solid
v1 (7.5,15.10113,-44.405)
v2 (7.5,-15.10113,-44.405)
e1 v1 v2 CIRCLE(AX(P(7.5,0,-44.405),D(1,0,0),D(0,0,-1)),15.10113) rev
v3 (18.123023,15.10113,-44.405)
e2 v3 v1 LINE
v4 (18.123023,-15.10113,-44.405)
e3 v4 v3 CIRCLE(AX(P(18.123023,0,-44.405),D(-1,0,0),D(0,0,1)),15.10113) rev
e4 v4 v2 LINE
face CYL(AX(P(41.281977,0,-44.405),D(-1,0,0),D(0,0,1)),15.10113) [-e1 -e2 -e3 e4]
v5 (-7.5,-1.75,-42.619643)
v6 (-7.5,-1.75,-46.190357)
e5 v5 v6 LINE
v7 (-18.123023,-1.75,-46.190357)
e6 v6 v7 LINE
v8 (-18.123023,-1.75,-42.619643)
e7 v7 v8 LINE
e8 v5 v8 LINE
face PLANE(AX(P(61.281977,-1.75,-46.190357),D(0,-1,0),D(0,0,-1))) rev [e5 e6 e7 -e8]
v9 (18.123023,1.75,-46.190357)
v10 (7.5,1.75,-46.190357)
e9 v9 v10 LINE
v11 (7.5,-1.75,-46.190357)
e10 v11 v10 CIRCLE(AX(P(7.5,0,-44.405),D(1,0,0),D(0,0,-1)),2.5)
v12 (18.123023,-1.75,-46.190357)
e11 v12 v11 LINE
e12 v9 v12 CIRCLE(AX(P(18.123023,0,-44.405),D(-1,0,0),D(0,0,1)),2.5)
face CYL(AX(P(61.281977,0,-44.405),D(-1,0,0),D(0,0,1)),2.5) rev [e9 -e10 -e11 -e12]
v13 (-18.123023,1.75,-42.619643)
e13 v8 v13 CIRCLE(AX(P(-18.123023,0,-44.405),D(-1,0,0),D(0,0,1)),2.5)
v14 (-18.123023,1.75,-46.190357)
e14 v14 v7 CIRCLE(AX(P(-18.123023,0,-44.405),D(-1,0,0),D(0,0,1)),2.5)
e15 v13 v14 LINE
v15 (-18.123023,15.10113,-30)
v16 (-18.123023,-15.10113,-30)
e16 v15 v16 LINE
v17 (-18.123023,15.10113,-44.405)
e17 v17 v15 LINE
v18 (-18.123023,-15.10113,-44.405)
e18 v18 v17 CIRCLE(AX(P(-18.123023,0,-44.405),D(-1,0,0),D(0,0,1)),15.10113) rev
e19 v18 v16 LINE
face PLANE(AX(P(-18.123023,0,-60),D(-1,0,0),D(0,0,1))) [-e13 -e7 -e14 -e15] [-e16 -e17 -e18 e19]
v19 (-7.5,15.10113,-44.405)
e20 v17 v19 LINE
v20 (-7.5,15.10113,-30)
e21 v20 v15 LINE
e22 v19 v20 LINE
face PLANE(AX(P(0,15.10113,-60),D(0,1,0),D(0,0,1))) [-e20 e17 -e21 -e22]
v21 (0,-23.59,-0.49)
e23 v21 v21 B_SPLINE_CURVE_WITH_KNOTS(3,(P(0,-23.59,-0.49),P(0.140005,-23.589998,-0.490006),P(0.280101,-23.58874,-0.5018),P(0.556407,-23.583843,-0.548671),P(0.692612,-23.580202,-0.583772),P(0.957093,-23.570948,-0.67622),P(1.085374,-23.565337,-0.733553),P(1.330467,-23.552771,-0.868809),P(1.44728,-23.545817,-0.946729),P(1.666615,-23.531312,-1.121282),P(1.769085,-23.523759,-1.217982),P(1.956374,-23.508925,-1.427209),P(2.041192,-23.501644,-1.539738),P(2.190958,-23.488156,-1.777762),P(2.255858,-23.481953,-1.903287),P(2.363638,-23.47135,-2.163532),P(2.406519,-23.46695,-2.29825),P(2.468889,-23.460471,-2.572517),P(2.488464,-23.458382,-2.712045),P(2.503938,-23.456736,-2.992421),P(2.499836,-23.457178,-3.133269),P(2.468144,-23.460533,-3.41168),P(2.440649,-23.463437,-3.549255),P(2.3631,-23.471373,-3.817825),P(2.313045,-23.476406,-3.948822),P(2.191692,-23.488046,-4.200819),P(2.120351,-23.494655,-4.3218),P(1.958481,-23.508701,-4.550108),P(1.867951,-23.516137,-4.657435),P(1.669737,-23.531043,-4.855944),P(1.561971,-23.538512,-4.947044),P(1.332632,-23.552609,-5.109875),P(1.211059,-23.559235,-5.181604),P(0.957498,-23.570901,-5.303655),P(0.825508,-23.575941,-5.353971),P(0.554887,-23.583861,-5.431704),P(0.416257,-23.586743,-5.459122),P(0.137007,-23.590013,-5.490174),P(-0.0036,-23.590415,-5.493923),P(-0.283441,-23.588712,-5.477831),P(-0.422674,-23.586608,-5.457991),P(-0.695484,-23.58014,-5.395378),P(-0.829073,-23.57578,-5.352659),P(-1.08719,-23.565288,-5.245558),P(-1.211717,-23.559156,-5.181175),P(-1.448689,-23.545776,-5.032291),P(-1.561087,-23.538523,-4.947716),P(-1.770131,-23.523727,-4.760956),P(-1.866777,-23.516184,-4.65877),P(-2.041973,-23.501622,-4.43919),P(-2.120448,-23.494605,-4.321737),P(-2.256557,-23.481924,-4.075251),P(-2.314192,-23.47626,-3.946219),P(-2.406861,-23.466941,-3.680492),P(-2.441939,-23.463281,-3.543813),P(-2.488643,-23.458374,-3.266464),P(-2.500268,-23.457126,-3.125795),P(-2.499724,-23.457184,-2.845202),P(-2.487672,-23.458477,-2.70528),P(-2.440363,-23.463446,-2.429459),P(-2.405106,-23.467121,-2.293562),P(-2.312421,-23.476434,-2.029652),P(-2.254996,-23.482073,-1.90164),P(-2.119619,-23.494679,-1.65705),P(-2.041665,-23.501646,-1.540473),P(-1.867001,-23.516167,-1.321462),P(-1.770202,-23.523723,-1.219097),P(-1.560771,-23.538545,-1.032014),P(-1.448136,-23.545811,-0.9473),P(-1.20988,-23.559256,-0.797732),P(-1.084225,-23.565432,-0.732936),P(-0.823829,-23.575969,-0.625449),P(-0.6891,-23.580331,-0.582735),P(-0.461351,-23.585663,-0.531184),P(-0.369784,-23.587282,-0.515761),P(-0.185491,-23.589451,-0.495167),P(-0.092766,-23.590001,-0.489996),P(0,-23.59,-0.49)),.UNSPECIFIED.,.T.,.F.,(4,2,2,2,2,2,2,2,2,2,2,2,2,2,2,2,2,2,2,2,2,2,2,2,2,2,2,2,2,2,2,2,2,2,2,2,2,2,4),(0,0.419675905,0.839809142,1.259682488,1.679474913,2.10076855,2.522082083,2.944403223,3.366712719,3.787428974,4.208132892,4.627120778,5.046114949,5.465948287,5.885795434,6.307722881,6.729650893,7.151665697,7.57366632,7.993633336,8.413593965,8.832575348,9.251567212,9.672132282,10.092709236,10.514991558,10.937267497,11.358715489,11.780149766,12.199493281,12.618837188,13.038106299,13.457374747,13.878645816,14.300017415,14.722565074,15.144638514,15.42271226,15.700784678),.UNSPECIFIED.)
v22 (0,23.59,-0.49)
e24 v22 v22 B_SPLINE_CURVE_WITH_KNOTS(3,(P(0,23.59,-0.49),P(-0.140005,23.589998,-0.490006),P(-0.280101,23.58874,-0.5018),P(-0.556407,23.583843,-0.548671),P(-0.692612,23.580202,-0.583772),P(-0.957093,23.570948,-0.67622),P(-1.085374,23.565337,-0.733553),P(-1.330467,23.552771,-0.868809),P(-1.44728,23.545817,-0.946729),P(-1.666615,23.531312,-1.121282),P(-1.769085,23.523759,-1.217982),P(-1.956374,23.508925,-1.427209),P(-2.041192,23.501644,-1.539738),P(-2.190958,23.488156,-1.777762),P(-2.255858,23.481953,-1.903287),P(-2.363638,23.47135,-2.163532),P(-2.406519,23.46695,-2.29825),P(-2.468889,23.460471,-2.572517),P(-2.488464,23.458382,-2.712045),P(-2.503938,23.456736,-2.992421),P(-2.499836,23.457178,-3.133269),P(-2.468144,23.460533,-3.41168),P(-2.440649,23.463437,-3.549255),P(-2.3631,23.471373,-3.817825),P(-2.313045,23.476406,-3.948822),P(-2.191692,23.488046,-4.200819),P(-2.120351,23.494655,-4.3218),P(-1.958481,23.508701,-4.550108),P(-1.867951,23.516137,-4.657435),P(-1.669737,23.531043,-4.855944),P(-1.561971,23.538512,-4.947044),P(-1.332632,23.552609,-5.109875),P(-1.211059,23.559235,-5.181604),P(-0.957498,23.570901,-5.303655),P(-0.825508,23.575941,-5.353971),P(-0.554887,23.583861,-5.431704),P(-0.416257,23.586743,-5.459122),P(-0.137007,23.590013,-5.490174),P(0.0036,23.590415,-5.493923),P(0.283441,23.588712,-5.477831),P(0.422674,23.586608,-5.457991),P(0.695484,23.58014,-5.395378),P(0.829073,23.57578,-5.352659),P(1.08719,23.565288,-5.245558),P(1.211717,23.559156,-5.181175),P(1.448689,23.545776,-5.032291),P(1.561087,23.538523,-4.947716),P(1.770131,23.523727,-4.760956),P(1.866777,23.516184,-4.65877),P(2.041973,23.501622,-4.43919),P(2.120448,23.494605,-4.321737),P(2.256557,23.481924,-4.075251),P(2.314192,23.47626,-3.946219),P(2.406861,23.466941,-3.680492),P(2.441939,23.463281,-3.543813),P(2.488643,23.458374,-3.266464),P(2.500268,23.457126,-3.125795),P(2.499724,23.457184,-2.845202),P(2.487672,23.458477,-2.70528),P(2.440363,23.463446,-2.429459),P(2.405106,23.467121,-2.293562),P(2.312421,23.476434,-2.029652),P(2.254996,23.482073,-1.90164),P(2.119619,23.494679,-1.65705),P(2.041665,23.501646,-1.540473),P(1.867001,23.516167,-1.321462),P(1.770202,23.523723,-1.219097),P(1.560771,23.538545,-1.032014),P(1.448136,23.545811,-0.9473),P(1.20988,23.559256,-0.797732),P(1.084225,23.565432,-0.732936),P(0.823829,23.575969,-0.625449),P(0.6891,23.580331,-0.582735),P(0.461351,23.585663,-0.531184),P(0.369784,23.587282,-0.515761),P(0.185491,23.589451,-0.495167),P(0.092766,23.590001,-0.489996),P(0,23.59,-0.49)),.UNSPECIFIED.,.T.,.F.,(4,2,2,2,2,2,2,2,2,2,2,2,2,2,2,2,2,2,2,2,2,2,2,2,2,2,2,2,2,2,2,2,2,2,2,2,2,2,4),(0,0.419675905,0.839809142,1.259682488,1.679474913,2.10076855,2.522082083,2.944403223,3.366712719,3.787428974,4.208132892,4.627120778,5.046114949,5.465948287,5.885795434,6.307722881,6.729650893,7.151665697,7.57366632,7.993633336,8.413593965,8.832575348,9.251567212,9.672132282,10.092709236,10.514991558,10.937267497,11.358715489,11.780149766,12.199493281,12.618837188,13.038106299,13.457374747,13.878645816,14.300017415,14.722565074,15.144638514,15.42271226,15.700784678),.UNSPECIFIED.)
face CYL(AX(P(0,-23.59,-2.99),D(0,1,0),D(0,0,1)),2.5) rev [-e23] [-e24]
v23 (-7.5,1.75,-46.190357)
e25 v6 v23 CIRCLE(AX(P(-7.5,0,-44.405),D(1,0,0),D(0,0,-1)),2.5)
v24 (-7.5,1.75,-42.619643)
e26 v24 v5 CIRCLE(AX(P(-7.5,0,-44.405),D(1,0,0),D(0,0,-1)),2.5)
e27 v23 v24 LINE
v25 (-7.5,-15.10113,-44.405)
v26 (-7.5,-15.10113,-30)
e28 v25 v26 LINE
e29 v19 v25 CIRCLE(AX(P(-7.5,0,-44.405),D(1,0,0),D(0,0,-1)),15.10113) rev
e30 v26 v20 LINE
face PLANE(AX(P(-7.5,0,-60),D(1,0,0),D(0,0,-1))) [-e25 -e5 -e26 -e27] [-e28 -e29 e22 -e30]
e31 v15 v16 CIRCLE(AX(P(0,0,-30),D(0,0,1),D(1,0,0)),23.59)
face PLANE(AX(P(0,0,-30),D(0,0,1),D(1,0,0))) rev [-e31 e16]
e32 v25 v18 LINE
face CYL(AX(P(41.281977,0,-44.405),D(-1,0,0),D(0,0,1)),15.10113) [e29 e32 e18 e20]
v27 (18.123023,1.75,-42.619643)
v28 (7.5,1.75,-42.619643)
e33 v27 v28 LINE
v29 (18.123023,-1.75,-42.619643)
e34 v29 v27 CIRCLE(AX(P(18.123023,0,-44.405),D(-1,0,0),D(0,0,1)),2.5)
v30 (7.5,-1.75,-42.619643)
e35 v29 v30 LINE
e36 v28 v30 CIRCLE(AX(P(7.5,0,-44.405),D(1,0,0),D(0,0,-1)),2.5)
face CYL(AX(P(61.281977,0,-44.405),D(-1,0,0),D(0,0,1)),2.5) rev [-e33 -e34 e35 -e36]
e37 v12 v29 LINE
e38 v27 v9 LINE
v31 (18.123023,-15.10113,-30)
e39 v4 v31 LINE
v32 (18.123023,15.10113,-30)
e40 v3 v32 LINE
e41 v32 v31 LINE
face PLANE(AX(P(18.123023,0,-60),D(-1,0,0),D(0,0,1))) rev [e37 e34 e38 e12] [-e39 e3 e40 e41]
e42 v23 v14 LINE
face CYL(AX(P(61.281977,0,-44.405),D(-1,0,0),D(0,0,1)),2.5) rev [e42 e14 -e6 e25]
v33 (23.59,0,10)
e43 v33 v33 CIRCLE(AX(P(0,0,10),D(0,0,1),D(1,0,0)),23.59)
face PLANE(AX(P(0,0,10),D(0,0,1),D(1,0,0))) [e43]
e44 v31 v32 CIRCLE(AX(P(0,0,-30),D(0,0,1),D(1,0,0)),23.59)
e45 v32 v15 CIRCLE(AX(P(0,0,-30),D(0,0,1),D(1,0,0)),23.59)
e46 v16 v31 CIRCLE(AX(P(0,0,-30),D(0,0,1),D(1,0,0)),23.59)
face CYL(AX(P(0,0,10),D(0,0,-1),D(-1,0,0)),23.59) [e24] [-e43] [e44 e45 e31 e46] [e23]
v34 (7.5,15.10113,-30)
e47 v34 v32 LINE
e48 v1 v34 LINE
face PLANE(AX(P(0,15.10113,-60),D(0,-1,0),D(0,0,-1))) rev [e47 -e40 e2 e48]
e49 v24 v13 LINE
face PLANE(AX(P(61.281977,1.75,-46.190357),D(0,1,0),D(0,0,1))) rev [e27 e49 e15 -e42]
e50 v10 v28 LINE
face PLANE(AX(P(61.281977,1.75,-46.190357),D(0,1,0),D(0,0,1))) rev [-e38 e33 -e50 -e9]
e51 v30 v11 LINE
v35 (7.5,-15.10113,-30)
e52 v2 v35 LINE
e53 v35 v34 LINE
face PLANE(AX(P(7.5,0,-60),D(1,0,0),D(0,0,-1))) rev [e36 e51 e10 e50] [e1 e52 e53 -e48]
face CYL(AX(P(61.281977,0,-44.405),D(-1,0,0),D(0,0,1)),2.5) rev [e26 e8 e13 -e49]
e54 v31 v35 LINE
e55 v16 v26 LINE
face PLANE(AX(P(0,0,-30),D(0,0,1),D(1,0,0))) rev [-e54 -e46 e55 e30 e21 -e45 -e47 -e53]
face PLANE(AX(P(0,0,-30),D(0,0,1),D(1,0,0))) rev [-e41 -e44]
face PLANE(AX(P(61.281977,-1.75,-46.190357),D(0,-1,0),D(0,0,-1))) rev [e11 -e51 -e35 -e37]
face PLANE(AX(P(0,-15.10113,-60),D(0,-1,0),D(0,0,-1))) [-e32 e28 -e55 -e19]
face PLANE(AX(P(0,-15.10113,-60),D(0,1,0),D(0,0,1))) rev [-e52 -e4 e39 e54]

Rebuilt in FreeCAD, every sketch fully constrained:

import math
import FreeCAD as App
import Part
import Sketcher

V = App.Vector


def add_polygon(sketch, points):
    """Adds a closed chain of lines whose ends are joined by coincident constraints."""
    first, n = sketch.GeometryCount, len(points)
    for a, b in zip(points, points[1:] + points[:1]):
        sketch.addGeometry(Part.LineSegment(App.Vector(*a, 0), App.Vector(*b, 0)), False)
    for i in range(n):
        sketch.addConstraint(Sketcher.Constraint("Coincident", first + i, 2, first + (i + 1) % n, 1))

doc = App.newDocument("Part")
body = doc.addObject("PartDesign::Body", "Body")

# Sketch on XY plane
sketch1 = doc.addObject("Sketcher::SketchObject", "Sketch")
body.addObject(sketch1)
sketch1.AttachmentSupport = (doc.XY_Plane, [""])
sketch1.MapMode = "FlatFace"
sketch1.addGeometry(Part.Circle(V(0, 0, 0), V(0, 0, 1), 24), False)
sketch1.addConstraint([
    Sketcher.Constraint("Coincident", 0, 3, -1, 1),
    Sketcher.Constraint("Diameter", 0, 47.18),
])
pad1 = doc.addObject("PartDesign::Pad", "Pad")
body.addObject(pad1)
pad1.Profile = sketch1
pad1.Type = "TwoLengths"
pad1.Length = 10
pad1.Length2 = 30

# Sketch on XY plane
sketch2 = doc.addObject("Sketcher::SketchObject", "Sketch001")
body.addObject(sketch2)
sketch2.AttachmentSupport = (doc.XY_Plane, [""])
sketch2.MapMode = "FlatFace"
sketch2.AttachmentOffset = App.Placement(V(0, 0, -30), App.Rotation())
add_polygon(sketch2, [(8, -15), (8, 15), (18, 15), (18, -15)])  # lines 0-3
add_polygon(sketch2, [(-8, 15), (-8, -15), (-18, -15), (-18, 15)])  # lines 4-7
sketch2.addConstraint([
    Sketcher.Constraint("Vertical", 0),
    Sketcher.Constraint("Horizontal", 1),
    Sketcher.Constraint("Vertical", 2),
    Sketcher.Constraint("Horizontal", 3),
    Sketcher.Constraint("Vertical", 4),
    Sketcher.Constraint("Horizontal", 5),
    Sketcher.Constraint("Vertical", 6),
    Sketcher.Constraint("Horizontal", 7),
    Sketcher.Constraint("Symmetric", 0, 2, 4, 2, -1, 1),
    Sketcher.Constraint("Symmetric", 2, 2, 6, 2, -1, 1),
    Sketcher.Constraint("Horizontal", 3, 2, 4, 2),
    Sketcher.Constraint("DistanceX", 4, 2, 3, 2, 15.0),
    Sketcher.Constraint("DistanceY", 0, 1, 0, 2, 30.20226),
    Sketcher.Constraint("DistanceX", 1, 1, 1, 2, 10.623023),
])
pad2 = doc.addObject("PartDesign::Pad", "Pad001")
body.addObject(pad2)
pad2.Profile = sketch2
pad2.Length = 30
pad2.Reversed = True

# Sketch on YZ plane
sketch3 = doc.addObject("Sketcher::SketchObject", "Sketch002")
body.addObject(sketch3)
sketch3.AttachmentSupport = (doc.YZ_Plane, [""])
sketch3.MapMode = "FlatFace"
sketch3.AttachmentOffset = App.Placement(V(0, 0, -18.123023), App.Rotation())
sketch3.addGeometry([
    Part.LineSegment(V(18.2, -44.4, 0), V(18.2, -62.6, 0)),  # 0
    Part.LineSegment(V(18.2, -62.6, 0), V(-18.3, -62.6, 0)),  # 1
    Part.LineSegment(V(-18.3, -62.6, 0), V(-18.3, -44.4, 0)),  # 2
    Part.LineSegment(V(-18.3, -44.4, 0), V(-15.1, -44.4, 0)),  # 3
    Part.ArcOfCircle(Part.Circle(V(0, -44.4, 0), V(0, 0, 1), 15.1), math.radians(180), math.radians(360)),  # 4
    Part.LineSegment(V(15.1, -44.4, 0), V(18.2, -44.4, 0)),  # 5
], False)
sketch3.addConstraint([
    Sketcher.Constraint("Coincident", 0, 2, 1, 1),
    Sketcher.Constraint("Coincident", 1, 2, 2, 1),
    Sketcher.Constraint("Coincident", 2, 2, 3, 1),
    Sketcher.Constraint("Coincident", 3, 2, 4, 1),
    Sketcher.Constraint("Coincident", 4, 2, 5, 1),
    Sketcher.Constraint("Coincident", 5, 2, 0, 1),
    Sketcher.Constraint("Vertical", 0),
    Sketcher.Constraint("Horizontal", 1),
    Sketcher.Constraint("Vertical", 2),
    Sketcher.Constraint("Horizontal", 3),
    Sketcher.Constraint("Horizontal", 5),
    Sketcher.Constraint("Symmetric", 3, 2, 4, 2, -2),
    Sketcher.Constraint("Horizontal", 4, 3, 2, 2),
    Sketcher.Constraint("Radius", 4, 15.10113),
    Sketcher.Constraint("DistanceX", 1, 2, 1, 1, 36.4243),
    Sketcher.Constraint("DistanceY", 4, 3, -1, 1, 44.405),
    Sketcher.Constraint("DistanceX", 3, 1, 3, 2, 3.150738),
    Sketcher.Constraint("DistanceY", 0, 2, 0, 1, 18.158044),
])
pocket1 = doc.addObject("PartDesign::Pocket", "Pocket")
body.addObject(pocket1)
pocket1.Profile = sketch3
pocket1.Length = 118.81
pocket1.Midplane = True

# Sketch on YZ plane
sketch4 = doc.addObject("Sketcher::SketchObject", "Sketch003")
body.addObject(sketch4)
sketch4.AttachmentSupport = (doc.YZ_Plane, [""])
sketch4.MapMode = "FlatFace"
sketch4.AttachmentOffset = App.Placement(V(0, 0, -18.123023), App.Rotation())
sketch4.addGeometry([
    Part.LineSegment(V(1.8, -42.6, 0), V(1.8, -46.2, 0)),
    Part.ArcOfCircle(Part.Circle(V(0, -44.4, 0), V(0, 0, 1), 2.5), math.radians(-134), math.radians(-46)),
    Part.LineSegment(V(-1.8, -46.2, 0), V(-1.8, -42.6, 0)),
    Part.ArcOfCircle(Part.Circle(V(0, -44.4, 0), V(0, 0, 1), 2.5), math.radians(46), math.radians(134)),
], False)
sketch4.addConstraint([
    Sketcher.Constraint("Coincident", 0, 2, 1, 2),
    Sketcher.Constraint("Coincident", 1, 1, 2, 1),
    Sketcher.Constraint("Coincident", 2, 2, 3, 2),
    Sketcher.Constraint("Coincident", 3, 1, 0, 1),
    Sketcher.Constraint("Vertical", 0),
    Sketcher.Constraint("Vertical", 2),
    Sketcher.Constraint("Coincident", 3, 3, 1, 3),
    Sketcher.Constraint("Equal", 1, 3),
    Sketcher.Constraint("Symmetric", 0, 2, 1, 1, -2),
    Sketcher.Constraint("Radius", 1, 2.5),
    Sketcher.Constraint("DistanceX", 1, 1, 0, 2, 3.5),
    Sketcher.Constraint("DistanceY", 1, 3, -1, 1, 44.405),
])
pocket2 = doc.addObject("PartDesign::Pocket", "Pocket001")
body.addObject(pocket2)
pocket2.Profile = sketch4
pocket2.Length = 158.81
pocket2.Midplane = True

# Sketch on XZ plane
sketch5 = doc.addObject("Sketcher::SketchObject", "Sketch004")
body.addObject(sketch5)
sketch5.AttachmentSupport = (doc.XZ_Plane, [""])
sketch5.MapMode = "FlatFace"
sketch5.AttachmentOffset = App.Placement(V(0, 0, -23.59), App.Rotation())
sketch5.addGeometry(Part.Circle(V(0, -3, 0), V(0, 0, 1), 2.5), False)
sketch5.addConstraint([
    Sketcher.Constraint("PointOnObject", 0, 3, -2),
    Sketcher.Constraint("Diameter", 0, 5.0),
    Sketcher.Constraint("DistanceY", 0, 3, -1, 1, 2.99),
])
pocket3 = doc.addObject("PartDesign::Pocket", "Pocket002")
body.addObject(pocket3)
pocket3.Profile = sketch5
pocket3.Type = "ThroughAll"
pocket3.Reversed = True

doc.recompute()
